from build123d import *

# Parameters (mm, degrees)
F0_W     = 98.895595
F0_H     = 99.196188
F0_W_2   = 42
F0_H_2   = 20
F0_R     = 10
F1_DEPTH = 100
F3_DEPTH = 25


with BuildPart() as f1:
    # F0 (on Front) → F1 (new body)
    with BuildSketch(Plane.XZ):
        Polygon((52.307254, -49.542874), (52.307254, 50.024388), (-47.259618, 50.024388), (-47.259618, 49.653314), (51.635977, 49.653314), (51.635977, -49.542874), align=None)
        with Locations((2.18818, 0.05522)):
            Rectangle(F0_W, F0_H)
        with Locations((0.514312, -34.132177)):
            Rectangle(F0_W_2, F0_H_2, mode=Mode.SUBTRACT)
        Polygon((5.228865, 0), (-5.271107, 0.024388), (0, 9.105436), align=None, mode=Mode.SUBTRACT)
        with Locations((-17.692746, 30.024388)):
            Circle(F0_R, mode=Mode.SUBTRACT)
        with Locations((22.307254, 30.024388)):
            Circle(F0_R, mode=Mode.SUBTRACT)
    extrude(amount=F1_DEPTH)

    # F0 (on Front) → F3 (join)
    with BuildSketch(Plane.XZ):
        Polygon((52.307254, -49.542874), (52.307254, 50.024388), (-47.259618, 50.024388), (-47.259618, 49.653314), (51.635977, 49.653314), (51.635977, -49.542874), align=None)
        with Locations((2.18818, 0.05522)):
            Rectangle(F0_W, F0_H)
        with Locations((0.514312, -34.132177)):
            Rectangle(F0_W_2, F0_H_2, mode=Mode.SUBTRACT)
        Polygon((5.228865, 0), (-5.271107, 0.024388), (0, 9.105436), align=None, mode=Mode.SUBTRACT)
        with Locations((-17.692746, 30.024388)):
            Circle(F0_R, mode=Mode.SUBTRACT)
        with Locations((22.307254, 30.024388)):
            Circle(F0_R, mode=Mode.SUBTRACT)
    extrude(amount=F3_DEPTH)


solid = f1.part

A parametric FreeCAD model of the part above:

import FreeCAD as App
import Part
import Sketcher
from FreeCAD import Vector
Q = App.Units.Quantity

doc = App.newDocument("Part")
body = doc.addObject("PartDesign::Body", "Body")

# Sketch on XZ plane
sketch1 = body.newObject("Sketcher::SketchObject", "Sketch")
sketch1.AttachmentSupport = (doc.getObject("XZ_Plane"), [""])
sketch1.MapMode = "FlatFace"
sketch1.addGeometry(Part.LineSegment(Vector(52.307254, -49.542874, 0), Vector(52.307254, 50.024388, 0)), False)
sketch1.addGeometry(Part.LineSegment(Vector(52.307254, 50.024388, 0), Vector(-47.259618, 50.024388, 0)), False)
sketch1.addGeometry(Part.LineSegment(Vector(-47.259618, 50.024388, 0), Vector(-47.259618, 49.653314, 0)), False)
sketch1.addGeometry(Part.LineSegment(Vector(-47.259617, 49.653314, 0), Vector(-47.259618, 49.653314, 0)), False)
sketch1.addGeometry(Part.LineSegment(Vector(-47.259617, 49.653314, 0), Vector(-47.259617, -49.542874, 0)), False)
sketch1.addGeometry(Part.LineSegment(Vector(-47.259617, -49.542874, 0), Vector(52.307254, -49.542874, 0)), False)
sketch1.addGeometry(Part.LineSegment(Vector(21.514312, -44.132177, 0), Vector(-20.485688, -44.132177, 0)), False)
sketch1.addGeometry(Part.LineSegment(Vector(-20.485688, -44.132177, 0), Vector(-20.485688, -24.132177, 0)), False)
sketch1.addGeometry(Part.LineSegment(Vector(-20.485688, -24.132177, 0), Vector(21.514312, -24.132177, 0)), False)
sketch1.addGeometry(Part.LineSegment(Vector(21.514312, -24.132177, 0), Vector(21.514312, -44.132177, 0)), False)
sketch1.addGeometry(Part.LineSegment(Vector(0, 9.105436, 0), Vector(5.228865, 0, 0)), False)
sketch1.addGeometry(Part.LineSegment(Vector(5.228865, 0, 0), Vector(-5.271107, 0.024388, 0)), False)
sketch1.addGeometry(Part.LineSegment(Vector(-5.271107, 0.024388, 0), Vector(0, 9.105436, 0)), False)
sketch1.addGeometry(Part.Circle(Vector(-17.692746, 30.024388, 0), Vector(0, 0, 1), 10), False)
sketch1.addGeometry(Part.Circle(Vector(22.307254, 30.024388, 0), Vector(0, 0, 1), 10), False)
sketch1.addConstraint(Sketcher.Constraint("Coincident", 0, 2, 1, 1))
sketch1.addConstraint(Sketcher.Constraint("Coincident", 1, 2, 2, 1))
sketch1.addConstraint(Sketcher.Constraint("Coincident", 2, 2, 3, 1))
sketch1.addConstraint(Sketcher.Constraint("Coincident", 3, 2, 4, 1))
sketch1.addConstraint(Sketcher.Constraint("Coincident", 4, 2, 5, 1))
sketch1.addConstraint(Sketcher.Constraint("Coincident", 5, 2, 0, 1))
sketch1.addConstraint(Sketcher.Constraint("Coincident", 6, 2, 7, 1))
sketch1.addConstraint(Sketcher.Constraint("Coincident", 7, 2, 8, 1))
sketch1.addConstraint(Sketcher.Constraint("Coincident", 8, 2, 9, 1))
sketch1.addConstraint(Sketcher.Constraint("Coincident", 9, 2, 6, 1))
sketch1.addConstraint(Sketcher.Constraint("Coincident", 10, 2, 11, 1))
sketch1.addConstraint(Sketcher.Constraint("Coincident", 11, 2, 12, 1))
sketch1.addConstraint(Sketcher.Constraint("Coincident", 12, 2, 10, 1))
sketch1.addConstraint(Sketcher.Constraint("Vertical", 0))
sketch1.addConstraint(Sketcher.Constraint("Horizontal", 1))
sketch1.addConstraint(Sketcher.Constraint("Vertical", 2))
sketch1.addConstraint(Sketcher.Constraint("Horizontal", 3))
sketch1.addConstraint(Sketcher.Constraint("Vertical", 4))
sketch1.addConstraint(Sketcher.Constraint("Horizontal", 5))
sketch1.addConstraint(Sketcher.Constraint("Horizontal", 6))
sketch1.addConstraint(Sketcher.Constraint("Vertical", 7))
sketch1.addConstraint(Sketcher.Constraint("Horizontal", 8))
sketch1.addConstraint(Sketcher.Constraint("Vertical", 9))
sketch1.addConstraint(Sketcher.Constraint("PointOnObject", 10, 2, -1))
sketch1.addConstraint(Sketcher.Constraint("PointOnObject", 12, 2, -2))
sketch1.addConstraint(Sketcher.Constraint("Diameter", 13, Q("20 mm")))
sketch1.addConstraint(Sketcher.Constraint("Diameter", 14, Q("20 mm")))
sketch1.addConstraint(Sketcher.Constraint("DistanceX", 6, 2, 6, 1, Q("42 mm")))
sketch1.addConstraint(Sketcher.Constraint("DistanceY", 7, 1, 7, 2, Q("20 mm")))
sketch1.addConstraint(Sketcher.Constraint("DistanceX", 13, 3, 14, 3, Q("40 mm")))
sketch1.addConstraint(Sketcher.Constraint("DistanceX", 14, 3, 0, 2, Q("30 mm")))
sketch1.addConstraint(Sketcher.Constraint("DistanceY", 14, 3, 0, 2, Q("20 mm")))
sketch1.addConstraint(Sketcher.Constraint("DistanceY", 13, 3, 0, 2, Q("20 mm")))
sketch1.addConstraint(Sketcher.Constraint("DistanceY", 11, 2, 13, 3, Q("30 mm")))
sketch1.addConstraint(Sketcher.Constraint("Distance", 10, Q("10.5 mm")))
sketch1.addConstraint(Sketcher.Constraint("Distance", 11, Q("10.5 mm")))
sketch1.addConstraint(Sketcher.Constraint("Distance", 12, Q("10.5 mm")))
sketch1.addConstraint(Sketcher.Constraint("DistanceX", 5, 1, 5, 2, Q("99.566871 mm")))
sketch1.addConstraint(Sketcher.Constraint("DistanceY", 0, 1, 0, 2, Q("99.567262 mm")))
sketch1.addConstraint(Sketcher.Constraint("DistanceY", 4, 2, 4, 1, Q("99.196188 mm")))
sketch1.addConstraint(Sketcher.Constraint("DistanceX", 1, 2, 1, 1, Q("99.566872 mm")))
sketch1.addConstraint(Sketcher.Constraint("DistanceY", -1, 1, 0, 2, Q("50.024388 mm")))
sketch1.addConstraint(Sketcher.Constraint("DistanceX", 1, 2, -1, 1, Q("47.259618 mm")))
sketch1.addConstraint(Sketcher.Constraint("DistanceX", 4, 2, 6, 2, Q("26.773929 mm")))
sketch1.addConstraint(Sketcher.Constraint("DistanceY", 6, 2, 2, 2, Q("93.785491 mm")))
pad1 = body.newObject("PartDesign::Pad", "Pad")
pad1.Profile = sketch1
pad1.Length = 100

# Sketch on XZ plane
sketch2 = body.newObject("Sketcher::SketchObject", "Sketch001")
sketch2.AttachmentSupport = (doc.getObject("XZ_Plane"), [""])
sketch2.MapMode = "FlatFace"
sketch2.addGeometry(Part.LineSegment(Vector(52.307254, -49.542874, 0), Vector(52.307254, 50.024388, 0)), False)
sketch2.addGeometry(Part.LineSegment(Vector(52.307254, 50.024388, 0), Vector(-47.259618, 50.024388, 0)), False)
sketch2.addGeometry(Part.LineSegment(Vector(-47.259618, 50.024388, 0), Vector(-47.259618, 49.653314, 0)), False)
sketch2.addGeometry(Part.LineSegment(Vector(-47.259617, 49.653314, 0), Vector(-47.259618, 49.653314, 0)), False)
sketch2.addGeometry(Part.LineSegment(Vector(-47.259617, 49.653314, 0), Vector(-47.259617, -49.542874, 0)), False)
sketch2.addGeometry(Part.LineSegment(Vector(-47.259617, -49.542874, 0), Vector(52.307254, -49.542874, 0)), False)
sketch2.addGeometry(Part.LineSegment(Vector(21.514312, -44.132177, 0), Vector(-20.485688, -44.132177, 0)), False)
sketch2.addGeometry(Part.LineSegment(Vector(-20.485688, -44.132177, 0), Vector(-20.485688, -24.132177, 0)), False)
sketch2.addGeometry(Part.LineSegment(Vector(-20.485688, -24.132177, 0), Vector(21.514312, -24.132177, 0)), False)
sketch2.addGeometry(Part.LineSegment(Vector(21.514312, -24.132177, 0), Vector(21.514312, -44.132177, 0)), False)
sketch2.addGeometry(Part.LineSegment(Vector(0, 9.105436, 0), Vector(5.228865, 0, 0)), False)
sketch2.addGeometry(Part.LineSegment(Vector(5.228865, 0, 0), Vector(-5.271107, 0.024388, 0)), False)
sketch2.addGeometry(Part.LineSegment(Vector(-5.271107, 0.024388, 0), Vector(0, 9.105436, 0)), False)
sketch2.addGeometry(Part.Circle(Vector(-17.692746, 30.024388, 0), Vector(0, 0, 1), 10), False)
sketch2.addGeometry(Part.Circle(Vector(22.307254, 30.024388, 0), Vector(0, 0, 1), 10), False)
sketch2.addConstraint(Sketcher.Constraint("Coincident", 0, 2, 1, 1))
sketch2.addConstraint(Sketcher.Constraint("Coincident", 1, 2, 2, 1))
sketch2.addConstraint(Sketcher.Constraint("Coincident", 2, 2, 3, 1))
sketch2.addConstraint(Sketcher.Constraint("Coincident", 3, 2, 4, 1))
sketch2.addConstraint(Sketcher.Constraint("Coincident", 4, 2, 5, 1))
sketch2.addConstraint(Sketcher.Constraint("Coincident", 5, 2, 0, 1))
sketch2.addConstraint(Sketcher.Constraint("Coincident", 6, 2, 7, 1))
sketch2.addConstraint(Sketcher.Constraint("Coincident", 7, 2, 8, 1))
sketch2.addConstraint(Sketcher.Constraint("Coincident", 8, 2, 9, 1))
sketch2.addConstraint(Sketcher.Constraint("Coincident", 9, 2, 6, 1))
sketch2.addConstraint(Sketcher.Constraint("Coincident", 10, 2, 11, 1))
sketch2.addConstraint(Sketcher.Constraint("Coincident", 11, 2, 12, 1))
sketch2.addConstraint(Sketcher.Constraint("Coincident", 12, 2, 10, 1))
sketch2.addConstraint(Sketcher.Constraint("Vertical", 0))
sketch2.addConstraint(Sketcher.Constraint("Horizontal", 1))
sketch2.addConstraint(Sketcher.Constraint("Vertical", 2))
sketch2.addConstraint(Sketcher.Constraint("Horizontal", 3))
sketch2.addConstraint(Sketcher.Constraint("Vertical", 4))
sketch2.addConstraint(Sketcher.Constraint("Horizontal", 5))
sketch2.addConstraint(Sketcher.Constraint("Horizontal", 6))
sketch2.addConstraint(Sketcher.Constraint("Vertical", 7))
sketch2.addConstraint(Sketcher.Constraint("Horizontal", 8))
sketch2.addConstraint(Sketcher.Constraint("Vertical", 9))
sketch2.addConstraint(Sketcher.Constraint("PointOnObject", 10, 2, -1))
sketch2.addConstraint(Sketcher.Constraint("PointOnObject", 12, 2, -2))
sketch2.addConstraint(Sketcher.Constraint("Diameter", 13, Q("20 mm")))
sketch2.addConstraint(Sketcher.Constraint("Diameter", 14, Q("20 mm")))
sketch2.addConstraint(Sketcher.Constraint("DistanceX", 6, 2, 6, 1, Q("42 mm")))
sketch2.addConstraint(Sketcher.Constraint("DistanceY", 7, 1, 7, 2, Q("20 mm")))
sketch2.addConstraint(Sketcher.Constraint("DistanceX", 13, 3, 14, 3, Q("40 mm")))
sketch2.addConstraint(Sketcher.Constraint("DistanceX", 14, 3, 0, 2, Q("30 mm")))
sketch2.addConstraint(Sketcher.Constraint("DistanceY", 14, 3, 0, 2, Q("20 mm")))
sketch2.addConstraint(Sketcher.Constraint("DistanceY", 13, 3, 0, 2, Q("20 mm")))
sketch2.addConstraint(Sketcher.Constraint("DistanceY", 11, 2, 13, 3, Q("30 mm")))
sketch2.addConstraint(Sketcher.Constraint("Distance", 10, Q("10.5 mm")))
sketch2.addConstraint(Sketcher.Constraint("Distance", 11, Q("10.5 mm")))
sketch2.addConstraint(Sketcher.Constraint("Distance", 12, Q("10.5 mm")))
sketch2.addConstraint(Sketcher.Constraint("DistanceX", 5, 1, 5, 2, Q("99.566871 mm")))
sketch2.addConstraint(Sketcher.Constraint("DistanceY", 0, 1, 0, 2, Q("99.567262 mm")))
sketch2.addConstraint(Sketcher.Constraint("DistanceY", 4, 2, 4, 1, Q("99.196188 mm")))
sketch2.addConstraint(Sketcher.Constraint("DistanceX", 1, 2, 1, 1, Q("99.566872 mm")))
sketch2.addConstraint(Sketcher.Constraint("DistanceY", -1, 1, 0, 2, Q("50.024388 mm")))
sketch2.addConstraint(Sketcher.Constraint("DistanceX", 1, 2, -1, 1, Q("47.259618 mm")))
sketch2.addConstraint(Sketcher.Constraint("DistanceX", 4, 2, 6, 2, Q("26.773929 mm")))
sketch2.addConstraint(Sketcher.Constraint("DistanceY", 6, 2, 2, 2, Q("93.785491 mm")))
pad2 = body.newObject("PartDesign::Pad", "Pad001")
pad2.Profile = sketch2
pad2.Length = 25

doc.recompute()
